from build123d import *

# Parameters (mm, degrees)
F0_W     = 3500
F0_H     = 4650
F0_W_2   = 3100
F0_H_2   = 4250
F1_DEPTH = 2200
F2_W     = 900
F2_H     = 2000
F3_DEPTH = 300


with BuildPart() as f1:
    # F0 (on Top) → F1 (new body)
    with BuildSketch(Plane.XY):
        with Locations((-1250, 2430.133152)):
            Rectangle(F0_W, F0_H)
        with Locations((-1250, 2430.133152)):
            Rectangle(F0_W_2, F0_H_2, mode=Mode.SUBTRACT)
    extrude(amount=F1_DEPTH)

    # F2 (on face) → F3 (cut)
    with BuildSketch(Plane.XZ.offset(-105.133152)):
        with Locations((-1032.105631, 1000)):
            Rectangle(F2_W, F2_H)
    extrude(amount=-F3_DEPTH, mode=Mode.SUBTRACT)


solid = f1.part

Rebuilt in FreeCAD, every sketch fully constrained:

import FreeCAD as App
import Part
import Sketcher
Q = App.Units.Quantity

doc = App.newDocument("Part")
body = doc.addObject("PartDesign::Body", "Body")

# Sketch on XY plane
sketch1 = doc.addObject("Sketcher::SketchObject", "Sketch")
body.addObject(sketch1)
sketch1.AttachmentSupport = (doc.XY_Plane, [""])
sketch1.MapMode = "FlatFace"
sketch1.addGeometry([
    Part.LineSegment(App.Vector(-3000, 4755, 0), App.Vector(-3000, 105, 0)),  # 0
    Part.LineSegment(App.Vector(-3000, 105, 0), App.Vector(500, 105, 0)),  # 1
    Part.LineSegment(App.Vector(500, 105, 0), App.Vector(500, 4755, 0)),  # 2
    Part.LineSegment(App.Vector(500, 4755, 0), App.Vector(-3000, 4755, 0)),  # 3
    Part.LineSegment(App.Vector(300, 305, 0), App.Vector(-2800, 305, 0)),  # 4
    Part.LineSegment(App.Vector(-2800, 305, 0), App.Vector(-2800, 4555, 0)),  # 5
    Part.LineSegment(App.Vector(-2800, 4555, 0), App.Vector(300, 4555, 0)),  # 6
    Part.LineSegment(App.Vector(300, 4555, 0), App.Vector(300, 305, 0)),  # 7
], False)
sketch1.addConstraint([
    Sketcher.Constraint("Coincident", 0, 2, 1, 1),
    Sketcher.Constraint("Coincident", 1, 2, 2, 1),
    Sketcher.Constraint("Coincident", 2, 2, 3, 1),
    Sketcher.Constraint("Coincident", 3, 2, 0, 1),
    Sketcher.Constraint("Coincident", 4, 2, 5, 1),
    Sketcher.Constraint("Coincident", 5, 2, 6, 1),
    Sketcher.Constraint("Coincident", 6, 2, 7, 1),
    Sketcher.Constraint("Coincident", 7, 2, 4, 1),
    Sketcher.Constraint("Vertical", 0),
    Sketcher.Constraint("Horizontal", 1),
    Sketcher.Constraint("Vertical", 2),
    Sketcher.Constraint("Horizontal", 3),
    Sketcher.Constraint("Horizontal", 4),
    Sketcher.Constraint("Vertical", 5),
    Sketcher.Constraint("Horizontal", 6),
    Sketcher.Constraint("Vertical", 7),
    Sketcher.Constraint("DistanceX", 1, 1, 1, 2, Q("3500 mm")),
    Sketcher.Constraint("DistanceX", 4, 2, 4, 1, Q("3100 mm")),
    Sketcher.Constraint("DistanceY", 0, 2, 0, 1, Q("4650 mm")),
    Sketcher.Constraint("DistanceY", 5, 1, 5, 2, Q("4250 mm")),
    Sketcher.Constraint("DistanceX", 0, 2, -1, 1, Q("3000 mm")),
    Sketcher.Constraint("DistanceX", 4, 2, -1, 1, Q("2800 mm")),
    Sketcher.Constraint("DistanceY", 0, 2, 4, 2, Q("200 mm")),
    Sketcher.Constraint("DistanceY", -1, 1, 0, 2, Q("105.133152 mm")),
])
pad1 = doc.addObject("PartDesign::Pad", "Pad")
body.addObject(pad1)
pad1.Profile = sketch1
pad1.Length = 2200

# Sketch on XZ plane
sketch2 = doc.addObject("Sketcher::SketchObject", "Sketch001")
body.addObject(sketch2)
sketch2.AttachmentSupport = (doc.XZ_Plane, [""])
sketch2.MapMode = "FlatFace"
sketch2.AttachmentOffset = App.Placement(App.Vector(0, 0, -105.133152), App.Rotation())
sketch2.addGeometry([
    Part.LineSegment(App.Vector(-1482, 2000, 0), App.Vector(-1482, 0, 0)),
    Part.LineSegment(App.Vector(-1482, 0, 0), App.Vector(-582, 0, 0)),
    Part.LineSegment(App.Vector(-582, 0, 0), App.Vector(-582, 2000, 0)),
    Part.LineSegment(App.Vector(-582, 2000, 0), App.Vector(-1482, 2000, 0)),
], False)
sketch2.addConstraint([
    Sketcher.Constraint("Coincident", 0, 2, 1, 1),
    Sketcher.Constraint("Coincident", 1, 2, 2, 1),
    Sketcher.Constraint("Coincident", 2, 2, 3, 1),
    Sketcher.Constraint("Coincident", 3, 2, 0, 1),
    Sketcher.Constraint("Vertical", 0),
    Sketcher.Constraint("Horizontal", 1),
    Sketcher.Constraint("Vertical", 2),
    Sketcher.Constraint("Horizontal", 3),
    Sketcher.Constraint("PointOnObject", 0, 2, -1),
    Sketcher.Constraint("DistanceX", 1, 1, 1, 2, Q("900 mm")),
    Sketcher.Constraint("DistanceY", 0, 2, 0, 1, Q("2000 mm")),
    Sketcher.Constraint("DistanceX", 0, 2, -1, 1, Q("1482.105631 mm")),
])
pocket1 = doc.addObject("PartDesign::Pocket", "Pocket")
body.addObject(pocket1)
pocket1.Profile = sketch2
pocket1.Length = 300

doc.recompute()
